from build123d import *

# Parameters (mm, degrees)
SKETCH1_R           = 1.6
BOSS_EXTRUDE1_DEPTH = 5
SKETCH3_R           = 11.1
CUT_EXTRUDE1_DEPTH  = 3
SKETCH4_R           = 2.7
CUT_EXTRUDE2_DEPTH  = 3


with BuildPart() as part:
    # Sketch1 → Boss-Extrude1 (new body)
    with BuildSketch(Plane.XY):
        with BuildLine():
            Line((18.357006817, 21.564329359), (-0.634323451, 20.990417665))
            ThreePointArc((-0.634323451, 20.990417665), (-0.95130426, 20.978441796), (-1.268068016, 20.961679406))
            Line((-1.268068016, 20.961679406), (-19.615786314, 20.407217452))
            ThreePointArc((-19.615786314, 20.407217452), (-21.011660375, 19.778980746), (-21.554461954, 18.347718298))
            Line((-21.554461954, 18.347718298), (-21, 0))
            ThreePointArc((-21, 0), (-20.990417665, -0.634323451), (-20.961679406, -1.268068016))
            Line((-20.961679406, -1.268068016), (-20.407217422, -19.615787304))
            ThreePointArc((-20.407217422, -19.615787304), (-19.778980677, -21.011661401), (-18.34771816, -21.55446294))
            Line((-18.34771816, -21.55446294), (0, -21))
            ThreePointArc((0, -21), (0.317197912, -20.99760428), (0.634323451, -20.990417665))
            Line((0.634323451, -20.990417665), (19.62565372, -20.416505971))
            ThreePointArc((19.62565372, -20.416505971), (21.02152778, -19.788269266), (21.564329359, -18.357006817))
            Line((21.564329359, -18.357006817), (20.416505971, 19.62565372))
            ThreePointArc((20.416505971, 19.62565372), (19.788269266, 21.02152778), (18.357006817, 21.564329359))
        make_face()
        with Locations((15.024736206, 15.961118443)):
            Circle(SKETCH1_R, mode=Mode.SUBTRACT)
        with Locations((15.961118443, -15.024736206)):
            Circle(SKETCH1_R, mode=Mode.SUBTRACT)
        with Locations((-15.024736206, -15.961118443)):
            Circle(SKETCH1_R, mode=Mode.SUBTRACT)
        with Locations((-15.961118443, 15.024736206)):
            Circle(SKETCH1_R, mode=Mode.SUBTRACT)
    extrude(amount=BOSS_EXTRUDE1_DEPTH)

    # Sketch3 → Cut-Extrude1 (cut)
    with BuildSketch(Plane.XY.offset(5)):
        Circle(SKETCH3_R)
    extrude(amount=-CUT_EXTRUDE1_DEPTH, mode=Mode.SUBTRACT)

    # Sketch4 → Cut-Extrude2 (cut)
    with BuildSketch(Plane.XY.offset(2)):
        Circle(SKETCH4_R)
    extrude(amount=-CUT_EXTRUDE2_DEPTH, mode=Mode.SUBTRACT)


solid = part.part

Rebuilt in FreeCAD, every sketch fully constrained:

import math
import FreeCAD as App
import Part
import Sketcher

V = App.Vector
Q = App.Units.Quantity

doc = App.newDocument("Part")
body = doc.addObject("PartDesign::Body", "Body")

sketch1 = body.newObject("Sketcher::SketchObject", "Sketch")
sketch1.AttachmentSupport = (doc.getObject("XY_Plane"), [""])
sketch1.MapMode = "FlatFace"
sketch1.addGeometry([
    Part.LineSegment(V(18.4, 21.6, 0), V(-0.6, 21, 0)),
    Part.ArcOfCircle(Part.Circle(V(0, 0, 0), V(0, 0, 1), 21), math.radians(91.73), math.radians(93.46)),
    Part.LineSegment(V(-1.3, 21, 0), V(-19.6, 20.4, 0)),
    Part.ArcOfCircle(Part.Circle(V(-19.6, 18.4, 0), V(0, 0, 1), 2), math.radians(92), math.radians(182)),
    Part.LineSegment(V(-21.6, 18.3, 0), V(-21, 0, 0)),
    Part.ArcOfCircle(Part.Circle(V(0, 0, 0), V(0, 0, 1), 21), math.radians(-180), math.radians(-176.54)),
    Part.LineSegment(V(-21, -1.3, 0), V(-20.4, -19.6, 0)),
    Part.ArcOfCircle(Part.Circle(V(-18.4, -19.6, 0), V(0, 0, 1), 2), math.radians(-178), math.radians(-88)),
    Part.LineSegment(V(-18.3, -21.6, 0), V(0, -21, 0)),
    Part.ArcOfCircle(Part.Circle(V(0, 0, 0), V(0, 0, 1), 21), math.radians(-90), math.radians(-88.27)),
    Part.LineSegment(V(0.6, -21, 0), V(19.6, -20.4, 0)),
    Part.ArcOfCircle(Part.Circle(V(19.6, -18.4, 0), V(0, 0, 1), 2), math.radians(-88), math.radians(2)),
    Part.LineSegment(V(21.6, -18.4, 0), V(20.4, 19.6, 0)),
    Part.ArcOfCircle(Part.Circle(V(18.4, 19.6, 0), V(0, 0, 1), 2), math.radians(2), math.radians(92)),
    Part.Circle(V(-15, -16, 0), V(0, 0, 1), 1.6),
    Part.Circle(V(16, -15, 0), V(0, 0, 1), 1.6),
    Part.Circle(V(-16, 15, 0), V(0, 0, 1), 1.6),
    Part.Circle(V(15, 16, 0), V(0, 0, 1), 1.6),
], False)
sketch1.addConstraint([
    Sketcher.Constraint("Tangent", 0, 2, 1, 1),
    Sketcher.Constraint("Coincident", 1, 2, 2, 1),
    Sketcher.Constraint("Tangent", 2, 2, 3, 1),
    Sketcher.Constraint("Tangent", 3, 2, 4, 1),
    Sketcher.Constraint("Coincident", 4, 2, 5, 1),
    Sketcher.Constraint("Coincident", 5, 2, 6, 1),
    Sketcher.Constraint("Tangent", 6, 2, 7, 1),
    Sketcher.Constraint("Tangent", 7, 2, 8, 1),
    Sketcher.Constraint("Coincident", 8, 2, 9, 1),
    Sketcher.Constraint("Tangent", 9, 2, 10, 1),
    Sketcher.Constraint("Tangent", 10, 2, 11, 1),
    Sketcher.Constraint("Tangent", 11, 2, 12, 1),
    Sketcher.Constraint("Tangent", 12, 2, 13, 1),
    Sketcher.Constraint("Tangent", 13, 2, 0, 1),
    Sketcher.Constraint("Coincident", 1, 3, -1, 1),
    Sketcher.Constraint("Coincident", 5, 3, -1, 1),
    Sketcher.Constraint("Coincident", 9, 3, -1, 1),
    Sketcher.Constraint("Equal", 3, 7),
    Sketcher.Constraint("Equal", 7, 11),
    Sketcher.Constraint("Equal", 11, 13),
    Sketcher.Constraint("Equal", 14, 15),
    Sketcher.Constraint("Equal", 15, 16),
    Sketcher.Constraint("Equal", 16, 17),
    Sketcher.Constraint("Symmetric", 15, 3, 16, 3, -1, 1),
    Sketcher.Constraint("Symmetric", 14, 3, 17, 3, -1, 1),
    Sketcher.Constraint("Symmetric", 0, 2, 9, 2, -1, 1),
    Sketcher.Constraint("PointOnObject", 4, 2, -1),
    Sketcher.Constraint("PointOnObject", 8, 2, -2),
    Sketcher.Constraint("Parallel", 0, 2),
    Sketcher.Constraint("Perpendicular", 2, 4),
    Sketcher.Constraint("Parallel", 4, 6),
    Sketcher.Constraint("Perpendicular", 6, 8),
    Sketcher.Constraint("Perpendicular", 10, 12),
    Sketcher.Constraint("Equal", 2, 4),
    Sketcher.Constraint("Equal", 4, 6),
    Sketcher.Constraint("Equal", 6, 8),
    Sketcher.Constraint("Radius", 3, Q("2 mm")),
    Sketcher.Constraint("Radius", 5, Q("21.000001 mm")),
    Sketcher.Constraint("Diameter", 14, Q("3.2 mm")),
    Sketcher.Constraint("Distance", 0, Q("19 mm")),
    Sketcher.Constraint("DistanceY", 17, 3, 0, 2, Q("5.029299 mm")),
    Sketcher.Constraint("DistanceY", 2, 2, 0, 2, Q("0.5832 mm")),
    Sketcher.Constraint("DistanceX", -1, 1, 15, 3, Q("15.961118 mm")),
    Sketcher.Constraint("DistanceX", 3, 3, 14, 3, Q("4.530638 mm")),
    Sketcher.Constraint("DistanceY", 9, 3, 16, 3, Q("15.02474 mm")),
])
pad1 = body.newObject("PartDesign::Pad", "Pad")
pad1.Profile = sketch1
pad1.Length = 5

sketch2 = body.newObject("Sketcher::SketchObject", "Sketch001")
sketch2.AttachmentSupport = (doc.getObject("XY_Plane"), [""])
sketch2.MapMode = "FlatFace"
sketch2.AttachmentOffset = App.Placement(V(0, 0, 5), App.Rotation())
sketch2.addGeometry(Part.Circle(V(0, 0, 0), V(0, 0, 1), 11), False)
sketch2.addConstraint([
    Sketcher.Constraint("Coincident", 0, 3, -1, 1),
    Sketcher.Constraint("Diameter", 0, Q("22.2 mm")),
])
pocket1 = body.newObject("PartDesign::Pocket", "Pocket")
pocket1.Profile = sketch2
pocket1.Length = 3

sketch3 = body.newObject("Sketcher::SketchObject", "Sketch002")
sketch3.AttachmentSupport = (doc.getObject("XY_Plane"), [""])
sketch3.MapMode = "FlatFace"
sketch3.AttachmentOffset = App.Placement(V(0, 0, 2), App.Rotation())
sketch3.addGeometry(Part.Circle(V(0, 0, 0), V(0, 0, 1), 2.7), False)
sketch3.addConstraint([
    Sketcher.Constraint("Coincident", 0, 3, -1, 1),
    Sketcher.Constraint("Diameter", 0, Q("5.4 mm")),
])
pocket2 = body.newObject("PartDesign::Pocket", "Pocket001")
pocket2.Profile = sketch3
pocket2.Length = 3

doc.recompute()
